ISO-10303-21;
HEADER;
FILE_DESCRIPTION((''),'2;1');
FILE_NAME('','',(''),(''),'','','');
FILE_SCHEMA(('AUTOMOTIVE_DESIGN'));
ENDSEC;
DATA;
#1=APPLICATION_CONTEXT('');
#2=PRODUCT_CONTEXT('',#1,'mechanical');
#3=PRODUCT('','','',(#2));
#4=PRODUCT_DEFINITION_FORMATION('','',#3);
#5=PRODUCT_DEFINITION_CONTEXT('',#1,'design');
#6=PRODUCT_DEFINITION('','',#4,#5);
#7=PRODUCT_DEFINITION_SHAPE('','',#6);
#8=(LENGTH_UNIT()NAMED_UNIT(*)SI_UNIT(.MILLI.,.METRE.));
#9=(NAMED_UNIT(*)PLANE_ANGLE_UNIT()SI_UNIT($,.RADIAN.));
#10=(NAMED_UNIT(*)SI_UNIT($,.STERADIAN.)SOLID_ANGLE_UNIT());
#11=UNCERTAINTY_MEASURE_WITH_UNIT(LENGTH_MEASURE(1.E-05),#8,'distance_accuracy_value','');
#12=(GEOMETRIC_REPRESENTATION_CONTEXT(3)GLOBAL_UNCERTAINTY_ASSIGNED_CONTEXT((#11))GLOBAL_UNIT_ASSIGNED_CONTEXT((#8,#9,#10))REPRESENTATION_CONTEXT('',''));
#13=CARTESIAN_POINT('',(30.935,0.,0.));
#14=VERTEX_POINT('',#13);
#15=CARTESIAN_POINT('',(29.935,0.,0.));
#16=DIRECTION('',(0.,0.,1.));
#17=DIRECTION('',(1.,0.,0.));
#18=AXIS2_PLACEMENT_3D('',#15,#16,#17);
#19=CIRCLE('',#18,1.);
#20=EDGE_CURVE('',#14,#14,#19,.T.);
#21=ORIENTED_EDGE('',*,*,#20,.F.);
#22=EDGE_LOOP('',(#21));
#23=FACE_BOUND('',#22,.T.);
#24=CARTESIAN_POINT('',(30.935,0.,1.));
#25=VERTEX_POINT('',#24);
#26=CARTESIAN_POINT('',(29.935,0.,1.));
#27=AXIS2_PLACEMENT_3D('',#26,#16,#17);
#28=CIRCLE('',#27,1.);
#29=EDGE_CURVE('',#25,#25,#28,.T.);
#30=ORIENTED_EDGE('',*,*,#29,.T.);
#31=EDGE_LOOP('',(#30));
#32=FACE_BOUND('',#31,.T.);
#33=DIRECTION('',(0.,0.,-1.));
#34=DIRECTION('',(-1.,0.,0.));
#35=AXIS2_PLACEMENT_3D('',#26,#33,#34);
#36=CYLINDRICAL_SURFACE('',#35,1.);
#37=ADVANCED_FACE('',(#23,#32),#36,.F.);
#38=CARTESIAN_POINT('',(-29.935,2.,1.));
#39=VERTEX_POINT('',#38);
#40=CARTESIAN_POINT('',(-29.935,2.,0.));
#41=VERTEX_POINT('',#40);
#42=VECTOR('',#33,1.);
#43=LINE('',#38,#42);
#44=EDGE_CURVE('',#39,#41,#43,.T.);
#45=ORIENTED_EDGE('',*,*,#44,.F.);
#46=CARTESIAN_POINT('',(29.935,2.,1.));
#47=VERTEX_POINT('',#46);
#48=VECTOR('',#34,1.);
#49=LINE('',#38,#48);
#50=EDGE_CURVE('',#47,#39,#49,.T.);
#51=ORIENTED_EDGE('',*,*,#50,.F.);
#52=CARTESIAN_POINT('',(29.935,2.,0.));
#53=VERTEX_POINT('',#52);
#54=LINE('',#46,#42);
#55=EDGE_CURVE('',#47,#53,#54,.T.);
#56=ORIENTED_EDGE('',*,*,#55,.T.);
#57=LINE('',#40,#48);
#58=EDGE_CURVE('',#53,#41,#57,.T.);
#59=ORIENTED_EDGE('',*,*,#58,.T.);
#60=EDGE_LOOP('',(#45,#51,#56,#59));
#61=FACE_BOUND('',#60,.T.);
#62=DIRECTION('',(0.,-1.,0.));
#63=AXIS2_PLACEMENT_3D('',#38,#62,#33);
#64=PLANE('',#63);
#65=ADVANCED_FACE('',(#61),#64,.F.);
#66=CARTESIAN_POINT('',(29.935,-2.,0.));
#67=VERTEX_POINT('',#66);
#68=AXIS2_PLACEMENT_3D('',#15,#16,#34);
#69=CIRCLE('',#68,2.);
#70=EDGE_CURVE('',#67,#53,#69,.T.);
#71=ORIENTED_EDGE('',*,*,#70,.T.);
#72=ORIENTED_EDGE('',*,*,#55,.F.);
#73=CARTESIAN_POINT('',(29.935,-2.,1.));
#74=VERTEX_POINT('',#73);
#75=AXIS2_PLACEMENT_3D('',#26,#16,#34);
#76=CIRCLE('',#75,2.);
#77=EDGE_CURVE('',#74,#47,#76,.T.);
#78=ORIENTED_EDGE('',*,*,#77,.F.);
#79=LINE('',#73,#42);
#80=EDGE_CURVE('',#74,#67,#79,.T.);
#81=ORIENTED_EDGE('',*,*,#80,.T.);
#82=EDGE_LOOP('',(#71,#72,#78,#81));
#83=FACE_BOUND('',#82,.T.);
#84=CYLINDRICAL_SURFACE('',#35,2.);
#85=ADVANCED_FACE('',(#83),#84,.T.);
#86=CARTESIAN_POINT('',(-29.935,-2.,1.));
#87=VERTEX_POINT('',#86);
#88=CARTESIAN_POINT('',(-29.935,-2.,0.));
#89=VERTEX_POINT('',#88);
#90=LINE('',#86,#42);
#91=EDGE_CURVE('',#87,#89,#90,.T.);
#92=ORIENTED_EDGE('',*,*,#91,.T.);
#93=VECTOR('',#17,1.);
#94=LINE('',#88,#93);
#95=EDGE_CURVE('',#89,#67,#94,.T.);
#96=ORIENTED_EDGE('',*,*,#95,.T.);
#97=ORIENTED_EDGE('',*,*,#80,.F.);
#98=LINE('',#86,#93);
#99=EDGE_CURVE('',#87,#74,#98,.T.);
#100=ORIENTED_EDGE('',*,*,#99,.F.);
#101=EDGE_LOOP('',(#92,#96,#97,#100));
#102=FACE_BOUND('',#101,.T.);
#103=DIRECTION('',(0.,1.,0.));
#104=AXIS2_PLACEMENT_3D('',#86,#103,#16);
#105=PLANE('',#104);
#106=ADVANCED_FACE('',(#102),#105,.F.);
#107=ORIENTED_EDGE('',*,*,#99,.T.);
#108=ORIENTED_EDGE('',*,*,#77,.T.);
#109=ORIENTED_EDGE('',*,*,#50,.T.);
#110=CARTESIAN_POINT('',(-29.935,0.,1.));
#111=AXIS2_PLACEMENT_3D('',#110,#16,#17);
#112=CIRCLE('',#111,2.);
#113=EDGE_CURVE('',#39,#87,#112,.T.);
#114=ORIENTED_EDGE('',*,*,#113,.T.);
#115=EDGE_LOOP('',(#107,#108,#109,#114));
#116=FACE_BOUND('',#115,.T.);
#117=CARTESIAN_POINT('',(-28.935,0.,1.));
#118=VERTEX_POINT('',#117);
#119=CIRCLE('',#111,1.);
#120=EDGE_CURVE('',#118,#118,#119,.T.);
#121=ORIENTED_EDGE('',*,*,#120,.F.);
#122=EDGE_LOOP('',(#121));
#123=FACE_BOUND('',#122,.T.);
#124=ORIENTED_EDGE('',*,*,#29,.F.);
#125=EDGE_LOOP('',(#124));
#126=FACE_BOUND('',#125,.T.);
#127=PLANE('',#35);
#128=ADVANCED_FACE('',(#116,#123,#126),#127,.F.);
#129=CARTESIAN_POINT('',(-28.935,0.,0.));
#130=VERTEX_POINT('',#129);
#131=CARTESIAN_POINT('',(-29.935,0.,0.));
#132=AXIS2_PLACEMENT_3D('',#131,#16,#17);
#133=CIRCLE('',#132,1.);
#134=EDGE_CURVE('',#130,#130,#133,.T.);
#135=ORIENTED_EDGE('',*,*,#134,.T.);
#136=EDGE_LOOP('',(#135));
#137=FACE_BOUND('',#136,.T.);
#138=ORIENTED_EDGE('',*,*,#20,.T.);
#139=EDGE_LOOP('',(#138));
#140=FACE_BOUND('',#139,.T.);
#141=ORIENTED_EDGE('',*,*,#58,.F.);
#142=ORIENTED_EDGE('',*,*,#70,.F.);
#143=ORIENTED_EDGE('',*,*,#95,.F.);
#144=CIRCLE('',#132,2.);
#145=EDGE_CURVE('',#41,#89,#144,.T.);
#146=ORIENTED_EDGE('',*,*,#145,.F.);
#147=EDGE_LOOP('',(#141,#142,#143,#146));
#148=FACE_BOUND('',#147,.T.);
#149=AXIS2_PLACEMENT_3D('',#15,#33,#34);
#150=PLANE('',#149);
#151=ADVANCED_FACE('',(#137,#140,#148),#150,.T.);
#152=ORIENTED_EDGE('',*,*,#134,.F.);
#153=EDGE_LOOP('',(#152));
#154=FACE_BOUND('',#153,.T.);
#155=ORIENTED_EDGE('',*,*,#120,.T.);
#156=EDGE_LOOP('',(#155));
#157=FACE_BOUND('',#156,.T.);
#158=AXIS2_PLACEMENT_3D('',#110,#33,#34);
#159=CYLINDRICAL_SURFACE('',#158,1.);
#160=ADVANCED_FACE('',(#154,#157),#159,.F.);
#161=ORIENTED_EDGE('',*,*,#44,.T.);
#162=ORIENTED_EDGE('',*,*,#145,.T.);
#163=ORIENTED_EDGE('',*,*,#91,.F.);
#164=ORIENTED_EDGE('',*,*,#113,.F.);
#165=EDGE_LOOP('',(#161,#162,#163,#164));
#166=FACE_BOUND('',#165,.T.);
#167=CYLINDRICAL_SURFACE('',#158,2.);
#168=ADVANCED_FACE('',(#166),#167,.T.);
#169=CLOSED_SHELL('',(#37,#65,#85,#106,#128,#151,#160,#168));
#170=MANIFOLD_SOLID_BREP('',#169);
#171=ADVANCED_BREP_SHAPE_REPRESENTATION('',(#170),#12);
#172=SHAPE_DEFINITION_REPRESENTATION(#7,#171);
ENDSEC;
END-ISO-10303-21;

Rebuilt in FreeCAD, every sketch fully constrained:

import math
import FreeCAD as App
import Part
import Sketcher

V = App.Vector
Q = App.Units.Quantity

doc = App.newDocument("Part")
body = doc.addObject("PartDesign::Body", "Body")

# Sketch on XY plane
sketch1 = body.newObject("Sketcher::SketchObject", "Sketch")
sketch1.AttachmentSupport = (doc.getObject("XY_Plane"), [""])
sketch1.MapMode = "FlatFace"
sketch1.addGeometry(Part.LineSegment(V(29.9, 2, 0), V(-29.9, 2, 0)), False)
sketch1.addGeometry(Part.ArcOfCircle(Part.Circle(V(-29.9, 0, 0), V(0, 0, 1), 2), math.radians(90), math.radians(270)), False)
sketch1.addGeometry(Part.LineSegment(V(-29.9, -2, 0), V(29.9, -2, 0)), False)
sketch1.addGeometry(Part.ArcOfCircle(Part.Circle(V(29.9, 0, 0), V(0, 0, 1), 2), math.radians(-90), math.radians(90)), False)
sketch1.addGeometry(Part.Circle(V(29.9, 0, 0), V(0, 0, 1), 1), False)
sketch1.addGeometry(Part.Circle(V(-29.9, 0, 0), V(0, 0, 1), 1), False)
sketch1.addConstraint(Sketcher.Constraint("Tangent", 0, 2, 1, 1))
sketch1.addConstraint(Sketcher.Constraint("Tangent", 1, 2, 2, 1))
sketch1.addConstraint(Sketcher.Constraint("Tangent", 2, 2, 3, 1))
sketch1.addConstraint(Sketcher.Constraint("Tangent", 3, 2, 0, 1))
sketch1.addConstraint(Sketcher.Constraint("Horizontal", 0))
sketch1.addConstraint(Sketcher.Constraint("Horizontal", 2))
sketch1.addConstraint(Sketcher.Constraint("Coincident", 4, 3, 3, 3))
sketch1.addConstraint(Sketcher.Constraint("Coincident", 5, 3, 1, 3))
sketch1.addConstraint(Sketcher.Constraint("Equal", 4, 5))
sketch1.addConstraint(Sketcher.Constraint("Symmetric", 1, 3, 3, 3, -1, 1))
sketch1.addConstraint(Sketcher.Constraint("Diameter", 4, Q("2 mm")))
sketch1.addConstraint(Sketcher.Constraint("Radius", 1, Q("2 mm")))
sketch1.addConstraint(Sketcher.Constraint("DistanceX", 0, 2, 0, 1, Q("59.87 mm")))
pad1 = body.newObject("PartDesign::Pad", "Pad")
pad1.Profile = sketch1
pad1.Length = 1

doc.recompute()
